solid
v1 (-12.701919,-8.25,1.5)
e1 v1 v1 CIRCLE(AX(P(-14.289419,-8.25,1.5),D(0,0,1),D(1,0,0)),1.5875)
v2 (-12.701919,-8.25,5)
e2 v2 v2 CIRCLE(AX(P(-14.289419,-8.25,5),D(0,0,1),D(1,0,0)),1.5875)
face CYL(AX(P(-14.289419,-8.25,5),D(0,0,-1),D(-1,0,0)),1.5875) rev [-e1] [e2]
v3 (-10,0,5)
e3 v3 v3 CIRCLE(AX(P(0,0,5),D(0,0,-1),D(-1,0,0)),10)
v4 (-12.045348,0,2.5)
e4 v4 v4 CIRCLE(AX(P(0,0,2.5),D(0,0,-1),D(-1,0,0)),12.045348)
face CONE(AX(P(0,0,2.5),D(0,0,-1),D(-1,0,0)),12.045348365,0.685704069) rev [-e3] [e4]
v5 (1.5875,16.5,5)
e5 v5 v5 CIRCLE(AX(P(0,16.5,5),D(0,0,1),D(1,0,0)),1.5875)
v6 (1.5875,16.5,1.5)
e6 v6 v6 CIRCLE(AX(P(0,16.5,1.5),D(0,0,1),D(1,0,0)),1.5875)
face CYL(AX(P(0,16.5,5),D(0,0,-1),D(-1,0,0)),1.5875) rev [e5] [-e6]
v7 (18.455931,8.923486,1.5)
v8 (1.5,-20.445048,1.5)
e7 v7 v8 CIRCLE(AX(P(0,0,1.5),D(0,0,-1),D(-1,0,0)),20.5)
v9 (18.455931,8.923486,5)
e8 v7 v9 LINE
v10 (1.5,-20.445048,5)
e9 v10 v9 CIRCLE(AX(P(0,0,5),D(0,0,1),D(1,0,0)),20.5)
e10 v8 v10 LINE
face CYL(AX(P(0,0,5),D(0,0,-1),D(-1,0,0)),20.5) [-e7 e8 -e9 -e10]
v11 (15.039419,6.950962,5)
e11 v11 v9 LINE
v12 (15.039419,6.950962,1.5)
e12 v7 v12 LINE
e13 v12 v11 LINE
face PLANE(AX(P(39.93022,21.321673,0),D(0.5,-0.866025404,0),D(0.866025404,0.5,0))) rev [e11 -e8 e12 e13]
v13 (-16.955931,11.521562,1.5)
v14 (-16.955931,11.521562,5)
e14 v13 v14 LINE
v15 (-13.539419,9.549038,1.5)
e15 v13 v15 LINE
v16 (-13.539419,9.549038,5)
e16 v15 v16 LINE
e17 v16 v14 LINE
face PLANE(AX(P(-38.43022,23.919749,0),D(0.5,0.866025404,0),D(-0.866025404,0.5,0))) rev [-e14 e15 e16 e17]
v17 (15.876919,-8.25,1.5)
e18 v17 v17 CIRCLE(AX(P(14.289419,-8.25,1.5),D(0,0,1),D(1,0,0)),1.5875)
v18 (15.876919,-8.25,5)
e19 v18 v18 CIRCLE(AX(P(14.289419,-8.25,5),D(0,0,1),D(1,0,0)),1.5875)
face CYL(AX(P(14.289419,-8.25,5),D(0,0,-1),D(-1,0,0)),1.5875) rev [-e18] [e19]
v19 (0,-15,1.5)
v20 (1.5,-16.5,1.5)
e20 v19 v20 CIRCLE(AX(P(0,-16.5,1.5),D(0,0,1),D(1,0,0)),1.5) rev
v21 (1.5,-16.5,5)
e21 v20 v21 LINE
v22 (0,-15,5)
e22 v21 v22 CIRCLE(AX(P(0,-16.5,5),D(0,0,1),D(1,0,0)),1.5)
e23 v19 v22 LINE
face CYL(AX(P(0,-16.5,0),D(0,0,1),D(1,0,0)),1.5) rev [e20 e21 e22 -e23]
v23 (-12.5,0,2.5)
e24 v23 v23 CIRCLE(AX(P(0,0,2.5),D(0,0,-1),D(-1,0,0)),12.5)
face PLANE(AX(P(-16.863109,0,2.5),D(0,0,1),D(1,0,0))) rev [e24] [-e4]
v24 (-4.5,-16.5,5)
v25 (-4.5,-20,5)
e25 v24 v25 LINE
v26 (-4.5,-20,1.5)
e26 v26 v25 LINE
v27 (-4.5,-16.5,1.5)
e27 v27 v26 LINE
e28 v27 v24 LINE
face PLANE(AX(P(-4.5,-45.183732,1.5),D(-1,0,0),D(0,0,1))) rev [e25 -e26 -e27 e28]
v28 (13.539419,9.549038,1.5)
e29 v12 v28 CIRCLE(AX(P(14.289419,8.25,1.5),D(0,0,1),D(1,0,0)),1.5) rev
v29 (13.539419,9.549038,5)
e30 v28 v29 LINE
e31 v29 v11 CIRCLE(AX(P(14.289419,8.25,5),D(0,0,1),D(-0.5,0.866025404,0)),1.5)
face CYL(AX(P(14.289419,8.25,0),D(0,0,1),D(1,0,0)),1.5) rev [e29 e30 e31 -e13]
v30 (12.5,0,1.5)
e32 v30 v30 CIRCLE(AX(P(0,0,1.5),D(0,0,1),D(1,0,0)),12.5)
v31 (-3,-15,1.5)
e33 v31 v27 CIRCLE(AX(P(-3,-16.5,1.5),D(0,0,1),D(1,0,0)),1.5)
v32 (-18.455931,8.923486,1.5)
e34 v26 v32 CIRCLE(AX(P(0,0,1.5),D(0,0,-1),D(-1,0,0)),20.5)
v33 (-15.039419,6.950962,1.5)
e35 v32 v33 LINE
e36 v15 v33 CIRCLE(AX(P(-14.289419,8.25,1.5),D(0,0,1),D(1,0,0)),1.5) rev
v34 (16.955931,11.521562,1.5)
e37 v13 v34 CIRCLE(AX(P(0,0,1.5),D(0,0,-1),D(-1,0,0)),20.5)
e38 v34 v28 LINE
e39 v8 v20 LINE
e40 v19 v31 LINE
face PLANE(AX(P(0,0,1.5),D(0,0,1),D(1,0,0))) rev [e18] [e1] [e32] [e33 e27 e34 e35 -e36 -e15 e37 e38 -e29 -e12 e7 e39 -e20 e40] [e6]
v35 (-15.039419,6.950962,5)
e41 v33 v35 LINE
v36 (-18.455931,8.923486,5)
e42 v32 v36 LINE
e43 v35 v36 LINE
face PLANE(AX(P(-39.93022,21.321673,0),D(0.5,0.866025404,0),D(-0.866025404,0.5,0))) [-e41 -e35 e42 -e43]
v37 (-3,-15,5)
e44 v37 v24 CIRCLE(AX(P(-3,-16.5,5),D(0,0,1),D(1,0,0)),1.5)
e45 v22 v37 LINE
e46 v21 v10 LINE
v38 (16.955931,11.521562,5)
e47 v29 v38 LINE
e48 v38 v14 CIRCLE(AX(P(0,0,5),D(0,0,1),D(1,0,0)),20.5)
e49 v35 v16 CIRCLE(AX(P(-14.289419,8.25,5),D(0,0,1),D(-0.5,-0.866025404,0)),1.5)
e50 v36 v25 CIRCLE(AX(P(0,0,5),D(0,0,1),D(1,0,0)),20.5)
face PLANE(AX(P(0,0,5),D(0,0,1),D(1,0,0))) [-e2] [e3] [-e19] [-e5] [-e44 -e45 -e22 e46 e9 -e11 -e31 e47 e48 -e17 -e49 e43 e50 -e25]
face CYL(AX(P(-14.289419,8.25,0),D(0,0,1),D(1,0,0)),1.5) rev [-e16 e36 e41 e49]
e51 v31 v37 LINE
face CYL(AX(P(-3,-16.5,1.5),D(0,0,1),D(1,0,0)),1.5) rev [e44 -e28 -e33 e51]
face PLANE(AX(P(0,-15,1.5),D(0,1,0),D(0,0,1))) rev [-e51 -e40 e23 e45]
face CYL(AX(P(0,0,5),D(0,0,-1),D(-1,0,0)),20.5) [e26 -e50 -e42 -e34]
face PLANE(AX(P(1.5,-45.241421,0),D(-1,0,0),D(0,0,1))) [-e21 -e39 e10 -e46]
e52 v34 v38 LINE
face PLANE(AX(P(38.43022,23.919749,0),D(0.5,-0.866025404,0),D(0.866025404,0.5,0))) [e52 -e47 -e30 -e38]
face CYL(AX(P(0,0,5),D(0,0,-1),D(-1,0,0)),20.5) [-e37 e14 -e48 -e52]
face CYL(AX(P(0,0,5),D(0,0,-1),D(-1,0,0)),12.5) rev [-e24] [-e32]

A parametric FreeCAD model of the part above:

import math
import FreeCAD as App
import Part
import Sketcher

V = App.Vector
Q = App.Units.Quantity


def add_polygon(sketch, points):
    """Adds a closed chain of lines whose ends are joined by coincident constraints."""
    first, n = sketch.GeometryCount, len(points)
    for a, b in zip(points, points[1:] + points[:1]):
        sketch.addGeometry(Part.LineSegment(App.Vector(*a, 0), App.Vector(*b, 0)), False)
    for i in range(n):
        sketch.addConstraint(Sketcher.Constraint("Coincident", first + i, 2, first + (i + 1) % n, 1))

doc = App.newDocument("Part")
body = doc.addObject("PartDesign::Body", "Body")

# Sketch on XY plane
sketch1 = body.newObject("Sketcher::SketchObject", "Sketch")
sketch1.AttachmentSupport = (doc.getObject("XY_Plane"), [""])
sketch1.MapMode = "FlatFace"
sketch1.addGeometry(Part.Circle(V(0, 0, 0), V(0, 0, 1), 20.5), False)
sketch1.addGeometry(Part.Circle(V(-14.3, -8.2, 0), V(0, 0, 1), 1.6), False)
sketch1.addGeometry(Part.Circle(V(14.3, -8.2, 0), V(0, 0, 1), 1.6), False)
sketch1.addGeometry(Part.Circle(V(0, 0, 0), V(0, 0, 1), 12.5), False)
sketch1.addGeometry(Part.Circle(V(0, 16.5, 0), V(0, 0, 1), 1.6), False)
sketch1.addConstraint(Sketcher.Constraint("Coincident", 0, 3, -1, 1))
sketch1.addConstraint(Sketcher.Constraint("Coincident", 3, 3, -1, 1))
sketch1.addConstraint(Sketcher.Constraint("Equal", 1, 2))
sketch1.addConstraint(Sketcher.Constraint("Equal", 2, 4))
sketch1.addConstraint(Sketcher.Constraint("Symmetric", 1, 3, 2, 3, -2))
sketch1.addConstraint(Sketcher.Constraint("PointOnObject", 4, 3, -2))
sketch1.addConstraint(Sketcher.Constraint("Diameter", 0, Q("41 mm")))
sketch1.addConstraint(Sketcher.Constraint("Diameter", 3, Q("25 mm")))
sketch1.addConstraint(Sketcher.Constraint("Diameter", 1, Q("3.175 mm")))
sketch1.addConstraint(Sketcher.Constraint("DistanceY", -1, 1, 4, 3, Q("16.5 mm")))
sketch1.addConstraint(Sketcher.Constraint("DistanceY", 1, 3, -1, 1, Q("8.25 mm")))
sketch1.addConstraint(Sketcher.Constraint("DistanceX", 1, 3, -1, 1, Q("14.289419 mm")))
pad1 = body.newObject("PartDesign::Pad", "Pad")
pad1.Profile = sketch1
pad1.Length = 5

# Sketch on XY plane
sketch2 = body.newObject("Sketcher::SketchObject", "Sketch001")
sketch2.AttachmentSupport = (doc.getObject("XY_Plane"), [""])
sketch2.MapMode = "FlatFace"
sketch2.AttachmentOffset = App.Placement(V(0, 0, 5), App.Rotation())
sketch2.addGeometry(Part.ArcOfCircle(Part.Circle(V(0, -16.5, 0), V(0, 0, 1), 1.5), math.radians(0), math.radians(180)), False)
sketch2.addGeometry(Part.LineSegment(V(-1.5, -16.5, 0), V(-1.5, -20.4, 0)), False)
sketch2.addGeometry(Part.ArcOfCircle(Part.Circle(V(0, 0, 0), V(0, 0, 1), 20.5), math.radians(-94.2), math.radians(-85.8)), False)
sketch2.addGeometry(Part.LineSegment(V(1.5, -20.4, 0), V(1.5, -16.5, 0)), False)
sketch2.addConstraint(Sketcher.Constraint("Tangent", 0, 2, 1, 1))
sketch2.addConstraint(Sketcher.Constraint("Coincident", 1, 2, 2, 1))
sketch2.addConstraint(Sketcher.Constraint("Coincident", 2, 2, 3, 1))
sketch2.addConstraint(Sketcher.Constraint("Tangent", 3, 2, 0, 1))
sketch2.addConstraint(Sketcher.Constraint("Vertical", 1))
sketch2.addConstraint(Sketcher.Constraint("Vertical", 3))
sketch2.addConstraint(Sketcher.Constraint("Coincident", 2, 3, -1, 1))
sketch2.addConstraint(Sketcher.Constraint("PointOnObject", 0, 3, -2))
sketch2.addConstraint(Sketcher.Constraint("Radius", 0, Q("1.5 mm")))
sketch2.addConstraint(Sketcher.Constraint("Radius", 2, Q("20.5 mm")))
sketch2.addConstraint(Sketcher.Constraint("DistanceY", 0, 3, -1, 1, Q("16.5 mm")))
pocket1 = body.newObject("PartDesign::Pocket", "Pocket")
pocket1.Profile = sketch2
pocket1.Type = "ThroughAll"
doc.recompute()

polarpattern = body.newObject("PartDesign::PolarPattern", "PolarPattern")
polarpattern.Originals = [pocket1]
polarpattern.Axis = (doc.getObject("Z_Axis"), [""])
polarpattern.Angle = 360
polarpattern.Occurrences = 3
body.Tip = polarpattern

# Sketch on XZ plane
sketch3 = body.newObject("Sketcher::SketchObject", "Sketch002")
sketch3.AttachmentSupport = (doc.getObject("XZ_Plane"), [""])
sketch3.MapMode = "FlatFace"
add_polygon(sketch3, [(-12.5, 2.5), (-12.5, 5), (-10, 5), (-10, 2.5)])  # lines 0-3
sketch3.addConstraint(Sketcher.Constraint("Vertical", 0))
sketch3.addConstraint(Sketcher.Constraint("Horizontal", 1))
sketch3.addConstraint(Sketcher.Constraint("Vertical", 2))
sketch3.addConstraint(Sketcher.Constraint("Horizontal", 3))
sketch3.addConstraint(Sketcher.Constraint("Equal", 3, 0))
sketch3.addConstraint(Sketcher.Constraint("DistanceX", 1, 1, 1, 2, Q("2.5 mm")))
sketch3.addConstraint(Sketcher.Constraint("DistanceY", -1, 1, 0, 2, Q("5 mm")))
sketch3.addConstraint(Sketcher.Constraint("DistanceX", 1, 2, -1, 1, Q("10 mm")))
revolution = body.newObject("PartDesign::Revolution", "Revolution")
revolution.Profile = sketch3
revolution.ReferenceAxis = (sketch3, ["V_Axis"])
revolution.Angle = 360

# Sketch on XZ plane
sketch4 = body.newObject("Sketcher::SketchObject", "Sketch003")
sketch4.AttachmentSupport = (doc.getObject("XZ_Plane"), [""])
sketch4.MapMode = "FlatFace"
add_polygon(sketch4, [(-20.5, 0), (-20.5, 1.5), (0, 1.5), (0, 0)])  # lines 0-3
sketch4.addConstraint(Sketcher.Constraint("Vertical", 0))
sketch4.addConstraint(Sketcher.Constraint("Horizontal", 1))
sketch4.addConstraint(Sketcher.Constraint("Vertical", 2))
sketch4.addConstraint(Sketcher.Constraint("Horizontal", 3))
sketch4.addConstraint(Sketcher.Constraint("Coincident", 2, 2, -1, 1))
sketch4.addConstraint(Sketcher.Constraint("DistanceX", 1, 1, 1, 2, Q("20.5 mm")))
sketch4.addConstraint(Sketcher.Constraint("DistanceY", 0, 1, 0, 2, Q("1.5 mm")))
groove = body.newObject("PartDesign::Groove", "Groove")
groove.Profile = sketch4
groove.ReferenceAxis = (sketch4, ["V_Axis"])
groove.Angle = 360

# Sketch on XY plane
sketch5 = body.newObject("Sketcher::SketchObject", "Sketch004")
sketch5.AttachmentSupport = (doc.getObject("XY_Plane"), [""])
sketch5.MapMode = "FlatFace"
sketch5.AttachmentOffset = App.Placement(V(0, 0, 5), App.Rotation())
sketch5.addGeometry(Part.ArcOfCircle(Part.Circle(V(0, -16.5, 0), V(0, 0, 1), 1.5), math.radians(90), math.radians(180)), False)
sketch5.addGeometry(Part.LineSegment(V(0, -15, 0), V(-3, -15, 0)), False)
sketch5.addGeometry(Part.ArcOfCircle(Part.Circle(V(-3, -16.5, 0), V(0, 0, 1), 1.5), math.radians(90), math.radians(180)), False)
sketch5.addGeometry(Part.LineSegment(V(-4.5, -16.5, 0), V(-4.5, -20, 0)), False)
sketch5.addGeometry(Part.ArcOfCircle(Part.Circle(V(0, 0, 0), V(0, 0, 1), 20.5), math.radians(-102.68), math.radians(-94.2)), False)
sketch5.addGeometry(Part.LineSegment(V(-1.5, -20.4, 0), V(-1.5, -16.5, 0)), False)
sketch5.addConstraint(Sketcher.Constraint("Tangent", 0, 1, 1, 1))
sketch5.addConstraint(Sketcher.Constraint("Tangent", 1, 2, 2, 1))
sketch5.addConstraint(Sketcher.Constraint("Tangent", 2, 2, 3, 1))
sketch5.addConstraint(Sketcher.Constraint("Coincident", 3, 2, 4, 1))
sketch5.addConstraint(Sketcher.Constraint("Coincident", 4, 2, 5, 1))
sketch5.addConstraint(Sketcher.Constraint("Tangent", 5, 2, 0, 2))
sketch5.addConstraint(Sketcher.Constraint("Horizontal", 1))
sketch5.addConstraint(Sketcher.Constraint("Vertical", 3))
sketch5.addConstraint(Sketcher.Constraint("Vertical", 5))
sketch5.addConstraint(Sketcher.Constraint("Coincident", 4, 3, -1, 1))
sketch5.addConstraint(Sketcher.Constraint("Equal", 0, 2))
sketch5.addConstraint(Sketcher.Constraint("PointOnObject", 0, 3, -2))
sketch5.addConstraint(Sketcher.Constraint("Radius", 0, Q("1.5 mm")))
sketch5.addConstraint(Sketcher.Constraint("Radius", 4, Q("20.5 mm")))
sketch5.addConstraint(Sketcher.Constraint("DistanceX", 1, 2, 1, 1, Q("3 mm")))
sketch5.addConstraint(Sketcher.Constraint("DistanceY", 3, 2, 3, 1, Q("3.5 mm")))
pocket2 = body.newObject("PartDesign::Pocket", "Pocket001")
pocket2.Profile = sketch5
pocket2.Type = "ThroughAll"

# Sketch on XZ plane
sketch6 = body.newObject("Sketcher::SketchObject", "Sketch005")
sketch6.AttachmentSupport = (doc.getObject("XZ_Plane"), [""])
sketch6.MapMode = "FlatFace"
add_polygon(sketch6, [(-12, 2.5), (-10, 5), (-10, 2.5)])  # lines 0-2
sketch6.addConstraint(Sketcher.Constraint("Vertical", 1))
sketch6.addConstraint(Sketcher.Constraint("Horizontal", 2))
sketch6.addConstraint(Sketcher.Constraint("DistanceY", 1, 2, 1, 1, Q("2.5 mm")))
sketch6.addConstraint(Sketcher.Constraint("DistanceX", 0, 2, -1, 1, Q("10 mm")))
sketch6.addConstraint(Sketcher.Constraint("DistanceY", -1, 1, 0, 2, Q("5 mm")))
sketch6.addConstraint(Sketcher.Constraint("DistanceX", 2, 2, 2, 1, Q("2.045348 mm")))
groove2 = body.newObject("PartDesign::Groove", "Groove001")
groove2.Profile = sketch6
groove2.ReferenceAxis = (sketch6, ["V_Axis"])
groove2.Angle = 360

doc.recompute()
